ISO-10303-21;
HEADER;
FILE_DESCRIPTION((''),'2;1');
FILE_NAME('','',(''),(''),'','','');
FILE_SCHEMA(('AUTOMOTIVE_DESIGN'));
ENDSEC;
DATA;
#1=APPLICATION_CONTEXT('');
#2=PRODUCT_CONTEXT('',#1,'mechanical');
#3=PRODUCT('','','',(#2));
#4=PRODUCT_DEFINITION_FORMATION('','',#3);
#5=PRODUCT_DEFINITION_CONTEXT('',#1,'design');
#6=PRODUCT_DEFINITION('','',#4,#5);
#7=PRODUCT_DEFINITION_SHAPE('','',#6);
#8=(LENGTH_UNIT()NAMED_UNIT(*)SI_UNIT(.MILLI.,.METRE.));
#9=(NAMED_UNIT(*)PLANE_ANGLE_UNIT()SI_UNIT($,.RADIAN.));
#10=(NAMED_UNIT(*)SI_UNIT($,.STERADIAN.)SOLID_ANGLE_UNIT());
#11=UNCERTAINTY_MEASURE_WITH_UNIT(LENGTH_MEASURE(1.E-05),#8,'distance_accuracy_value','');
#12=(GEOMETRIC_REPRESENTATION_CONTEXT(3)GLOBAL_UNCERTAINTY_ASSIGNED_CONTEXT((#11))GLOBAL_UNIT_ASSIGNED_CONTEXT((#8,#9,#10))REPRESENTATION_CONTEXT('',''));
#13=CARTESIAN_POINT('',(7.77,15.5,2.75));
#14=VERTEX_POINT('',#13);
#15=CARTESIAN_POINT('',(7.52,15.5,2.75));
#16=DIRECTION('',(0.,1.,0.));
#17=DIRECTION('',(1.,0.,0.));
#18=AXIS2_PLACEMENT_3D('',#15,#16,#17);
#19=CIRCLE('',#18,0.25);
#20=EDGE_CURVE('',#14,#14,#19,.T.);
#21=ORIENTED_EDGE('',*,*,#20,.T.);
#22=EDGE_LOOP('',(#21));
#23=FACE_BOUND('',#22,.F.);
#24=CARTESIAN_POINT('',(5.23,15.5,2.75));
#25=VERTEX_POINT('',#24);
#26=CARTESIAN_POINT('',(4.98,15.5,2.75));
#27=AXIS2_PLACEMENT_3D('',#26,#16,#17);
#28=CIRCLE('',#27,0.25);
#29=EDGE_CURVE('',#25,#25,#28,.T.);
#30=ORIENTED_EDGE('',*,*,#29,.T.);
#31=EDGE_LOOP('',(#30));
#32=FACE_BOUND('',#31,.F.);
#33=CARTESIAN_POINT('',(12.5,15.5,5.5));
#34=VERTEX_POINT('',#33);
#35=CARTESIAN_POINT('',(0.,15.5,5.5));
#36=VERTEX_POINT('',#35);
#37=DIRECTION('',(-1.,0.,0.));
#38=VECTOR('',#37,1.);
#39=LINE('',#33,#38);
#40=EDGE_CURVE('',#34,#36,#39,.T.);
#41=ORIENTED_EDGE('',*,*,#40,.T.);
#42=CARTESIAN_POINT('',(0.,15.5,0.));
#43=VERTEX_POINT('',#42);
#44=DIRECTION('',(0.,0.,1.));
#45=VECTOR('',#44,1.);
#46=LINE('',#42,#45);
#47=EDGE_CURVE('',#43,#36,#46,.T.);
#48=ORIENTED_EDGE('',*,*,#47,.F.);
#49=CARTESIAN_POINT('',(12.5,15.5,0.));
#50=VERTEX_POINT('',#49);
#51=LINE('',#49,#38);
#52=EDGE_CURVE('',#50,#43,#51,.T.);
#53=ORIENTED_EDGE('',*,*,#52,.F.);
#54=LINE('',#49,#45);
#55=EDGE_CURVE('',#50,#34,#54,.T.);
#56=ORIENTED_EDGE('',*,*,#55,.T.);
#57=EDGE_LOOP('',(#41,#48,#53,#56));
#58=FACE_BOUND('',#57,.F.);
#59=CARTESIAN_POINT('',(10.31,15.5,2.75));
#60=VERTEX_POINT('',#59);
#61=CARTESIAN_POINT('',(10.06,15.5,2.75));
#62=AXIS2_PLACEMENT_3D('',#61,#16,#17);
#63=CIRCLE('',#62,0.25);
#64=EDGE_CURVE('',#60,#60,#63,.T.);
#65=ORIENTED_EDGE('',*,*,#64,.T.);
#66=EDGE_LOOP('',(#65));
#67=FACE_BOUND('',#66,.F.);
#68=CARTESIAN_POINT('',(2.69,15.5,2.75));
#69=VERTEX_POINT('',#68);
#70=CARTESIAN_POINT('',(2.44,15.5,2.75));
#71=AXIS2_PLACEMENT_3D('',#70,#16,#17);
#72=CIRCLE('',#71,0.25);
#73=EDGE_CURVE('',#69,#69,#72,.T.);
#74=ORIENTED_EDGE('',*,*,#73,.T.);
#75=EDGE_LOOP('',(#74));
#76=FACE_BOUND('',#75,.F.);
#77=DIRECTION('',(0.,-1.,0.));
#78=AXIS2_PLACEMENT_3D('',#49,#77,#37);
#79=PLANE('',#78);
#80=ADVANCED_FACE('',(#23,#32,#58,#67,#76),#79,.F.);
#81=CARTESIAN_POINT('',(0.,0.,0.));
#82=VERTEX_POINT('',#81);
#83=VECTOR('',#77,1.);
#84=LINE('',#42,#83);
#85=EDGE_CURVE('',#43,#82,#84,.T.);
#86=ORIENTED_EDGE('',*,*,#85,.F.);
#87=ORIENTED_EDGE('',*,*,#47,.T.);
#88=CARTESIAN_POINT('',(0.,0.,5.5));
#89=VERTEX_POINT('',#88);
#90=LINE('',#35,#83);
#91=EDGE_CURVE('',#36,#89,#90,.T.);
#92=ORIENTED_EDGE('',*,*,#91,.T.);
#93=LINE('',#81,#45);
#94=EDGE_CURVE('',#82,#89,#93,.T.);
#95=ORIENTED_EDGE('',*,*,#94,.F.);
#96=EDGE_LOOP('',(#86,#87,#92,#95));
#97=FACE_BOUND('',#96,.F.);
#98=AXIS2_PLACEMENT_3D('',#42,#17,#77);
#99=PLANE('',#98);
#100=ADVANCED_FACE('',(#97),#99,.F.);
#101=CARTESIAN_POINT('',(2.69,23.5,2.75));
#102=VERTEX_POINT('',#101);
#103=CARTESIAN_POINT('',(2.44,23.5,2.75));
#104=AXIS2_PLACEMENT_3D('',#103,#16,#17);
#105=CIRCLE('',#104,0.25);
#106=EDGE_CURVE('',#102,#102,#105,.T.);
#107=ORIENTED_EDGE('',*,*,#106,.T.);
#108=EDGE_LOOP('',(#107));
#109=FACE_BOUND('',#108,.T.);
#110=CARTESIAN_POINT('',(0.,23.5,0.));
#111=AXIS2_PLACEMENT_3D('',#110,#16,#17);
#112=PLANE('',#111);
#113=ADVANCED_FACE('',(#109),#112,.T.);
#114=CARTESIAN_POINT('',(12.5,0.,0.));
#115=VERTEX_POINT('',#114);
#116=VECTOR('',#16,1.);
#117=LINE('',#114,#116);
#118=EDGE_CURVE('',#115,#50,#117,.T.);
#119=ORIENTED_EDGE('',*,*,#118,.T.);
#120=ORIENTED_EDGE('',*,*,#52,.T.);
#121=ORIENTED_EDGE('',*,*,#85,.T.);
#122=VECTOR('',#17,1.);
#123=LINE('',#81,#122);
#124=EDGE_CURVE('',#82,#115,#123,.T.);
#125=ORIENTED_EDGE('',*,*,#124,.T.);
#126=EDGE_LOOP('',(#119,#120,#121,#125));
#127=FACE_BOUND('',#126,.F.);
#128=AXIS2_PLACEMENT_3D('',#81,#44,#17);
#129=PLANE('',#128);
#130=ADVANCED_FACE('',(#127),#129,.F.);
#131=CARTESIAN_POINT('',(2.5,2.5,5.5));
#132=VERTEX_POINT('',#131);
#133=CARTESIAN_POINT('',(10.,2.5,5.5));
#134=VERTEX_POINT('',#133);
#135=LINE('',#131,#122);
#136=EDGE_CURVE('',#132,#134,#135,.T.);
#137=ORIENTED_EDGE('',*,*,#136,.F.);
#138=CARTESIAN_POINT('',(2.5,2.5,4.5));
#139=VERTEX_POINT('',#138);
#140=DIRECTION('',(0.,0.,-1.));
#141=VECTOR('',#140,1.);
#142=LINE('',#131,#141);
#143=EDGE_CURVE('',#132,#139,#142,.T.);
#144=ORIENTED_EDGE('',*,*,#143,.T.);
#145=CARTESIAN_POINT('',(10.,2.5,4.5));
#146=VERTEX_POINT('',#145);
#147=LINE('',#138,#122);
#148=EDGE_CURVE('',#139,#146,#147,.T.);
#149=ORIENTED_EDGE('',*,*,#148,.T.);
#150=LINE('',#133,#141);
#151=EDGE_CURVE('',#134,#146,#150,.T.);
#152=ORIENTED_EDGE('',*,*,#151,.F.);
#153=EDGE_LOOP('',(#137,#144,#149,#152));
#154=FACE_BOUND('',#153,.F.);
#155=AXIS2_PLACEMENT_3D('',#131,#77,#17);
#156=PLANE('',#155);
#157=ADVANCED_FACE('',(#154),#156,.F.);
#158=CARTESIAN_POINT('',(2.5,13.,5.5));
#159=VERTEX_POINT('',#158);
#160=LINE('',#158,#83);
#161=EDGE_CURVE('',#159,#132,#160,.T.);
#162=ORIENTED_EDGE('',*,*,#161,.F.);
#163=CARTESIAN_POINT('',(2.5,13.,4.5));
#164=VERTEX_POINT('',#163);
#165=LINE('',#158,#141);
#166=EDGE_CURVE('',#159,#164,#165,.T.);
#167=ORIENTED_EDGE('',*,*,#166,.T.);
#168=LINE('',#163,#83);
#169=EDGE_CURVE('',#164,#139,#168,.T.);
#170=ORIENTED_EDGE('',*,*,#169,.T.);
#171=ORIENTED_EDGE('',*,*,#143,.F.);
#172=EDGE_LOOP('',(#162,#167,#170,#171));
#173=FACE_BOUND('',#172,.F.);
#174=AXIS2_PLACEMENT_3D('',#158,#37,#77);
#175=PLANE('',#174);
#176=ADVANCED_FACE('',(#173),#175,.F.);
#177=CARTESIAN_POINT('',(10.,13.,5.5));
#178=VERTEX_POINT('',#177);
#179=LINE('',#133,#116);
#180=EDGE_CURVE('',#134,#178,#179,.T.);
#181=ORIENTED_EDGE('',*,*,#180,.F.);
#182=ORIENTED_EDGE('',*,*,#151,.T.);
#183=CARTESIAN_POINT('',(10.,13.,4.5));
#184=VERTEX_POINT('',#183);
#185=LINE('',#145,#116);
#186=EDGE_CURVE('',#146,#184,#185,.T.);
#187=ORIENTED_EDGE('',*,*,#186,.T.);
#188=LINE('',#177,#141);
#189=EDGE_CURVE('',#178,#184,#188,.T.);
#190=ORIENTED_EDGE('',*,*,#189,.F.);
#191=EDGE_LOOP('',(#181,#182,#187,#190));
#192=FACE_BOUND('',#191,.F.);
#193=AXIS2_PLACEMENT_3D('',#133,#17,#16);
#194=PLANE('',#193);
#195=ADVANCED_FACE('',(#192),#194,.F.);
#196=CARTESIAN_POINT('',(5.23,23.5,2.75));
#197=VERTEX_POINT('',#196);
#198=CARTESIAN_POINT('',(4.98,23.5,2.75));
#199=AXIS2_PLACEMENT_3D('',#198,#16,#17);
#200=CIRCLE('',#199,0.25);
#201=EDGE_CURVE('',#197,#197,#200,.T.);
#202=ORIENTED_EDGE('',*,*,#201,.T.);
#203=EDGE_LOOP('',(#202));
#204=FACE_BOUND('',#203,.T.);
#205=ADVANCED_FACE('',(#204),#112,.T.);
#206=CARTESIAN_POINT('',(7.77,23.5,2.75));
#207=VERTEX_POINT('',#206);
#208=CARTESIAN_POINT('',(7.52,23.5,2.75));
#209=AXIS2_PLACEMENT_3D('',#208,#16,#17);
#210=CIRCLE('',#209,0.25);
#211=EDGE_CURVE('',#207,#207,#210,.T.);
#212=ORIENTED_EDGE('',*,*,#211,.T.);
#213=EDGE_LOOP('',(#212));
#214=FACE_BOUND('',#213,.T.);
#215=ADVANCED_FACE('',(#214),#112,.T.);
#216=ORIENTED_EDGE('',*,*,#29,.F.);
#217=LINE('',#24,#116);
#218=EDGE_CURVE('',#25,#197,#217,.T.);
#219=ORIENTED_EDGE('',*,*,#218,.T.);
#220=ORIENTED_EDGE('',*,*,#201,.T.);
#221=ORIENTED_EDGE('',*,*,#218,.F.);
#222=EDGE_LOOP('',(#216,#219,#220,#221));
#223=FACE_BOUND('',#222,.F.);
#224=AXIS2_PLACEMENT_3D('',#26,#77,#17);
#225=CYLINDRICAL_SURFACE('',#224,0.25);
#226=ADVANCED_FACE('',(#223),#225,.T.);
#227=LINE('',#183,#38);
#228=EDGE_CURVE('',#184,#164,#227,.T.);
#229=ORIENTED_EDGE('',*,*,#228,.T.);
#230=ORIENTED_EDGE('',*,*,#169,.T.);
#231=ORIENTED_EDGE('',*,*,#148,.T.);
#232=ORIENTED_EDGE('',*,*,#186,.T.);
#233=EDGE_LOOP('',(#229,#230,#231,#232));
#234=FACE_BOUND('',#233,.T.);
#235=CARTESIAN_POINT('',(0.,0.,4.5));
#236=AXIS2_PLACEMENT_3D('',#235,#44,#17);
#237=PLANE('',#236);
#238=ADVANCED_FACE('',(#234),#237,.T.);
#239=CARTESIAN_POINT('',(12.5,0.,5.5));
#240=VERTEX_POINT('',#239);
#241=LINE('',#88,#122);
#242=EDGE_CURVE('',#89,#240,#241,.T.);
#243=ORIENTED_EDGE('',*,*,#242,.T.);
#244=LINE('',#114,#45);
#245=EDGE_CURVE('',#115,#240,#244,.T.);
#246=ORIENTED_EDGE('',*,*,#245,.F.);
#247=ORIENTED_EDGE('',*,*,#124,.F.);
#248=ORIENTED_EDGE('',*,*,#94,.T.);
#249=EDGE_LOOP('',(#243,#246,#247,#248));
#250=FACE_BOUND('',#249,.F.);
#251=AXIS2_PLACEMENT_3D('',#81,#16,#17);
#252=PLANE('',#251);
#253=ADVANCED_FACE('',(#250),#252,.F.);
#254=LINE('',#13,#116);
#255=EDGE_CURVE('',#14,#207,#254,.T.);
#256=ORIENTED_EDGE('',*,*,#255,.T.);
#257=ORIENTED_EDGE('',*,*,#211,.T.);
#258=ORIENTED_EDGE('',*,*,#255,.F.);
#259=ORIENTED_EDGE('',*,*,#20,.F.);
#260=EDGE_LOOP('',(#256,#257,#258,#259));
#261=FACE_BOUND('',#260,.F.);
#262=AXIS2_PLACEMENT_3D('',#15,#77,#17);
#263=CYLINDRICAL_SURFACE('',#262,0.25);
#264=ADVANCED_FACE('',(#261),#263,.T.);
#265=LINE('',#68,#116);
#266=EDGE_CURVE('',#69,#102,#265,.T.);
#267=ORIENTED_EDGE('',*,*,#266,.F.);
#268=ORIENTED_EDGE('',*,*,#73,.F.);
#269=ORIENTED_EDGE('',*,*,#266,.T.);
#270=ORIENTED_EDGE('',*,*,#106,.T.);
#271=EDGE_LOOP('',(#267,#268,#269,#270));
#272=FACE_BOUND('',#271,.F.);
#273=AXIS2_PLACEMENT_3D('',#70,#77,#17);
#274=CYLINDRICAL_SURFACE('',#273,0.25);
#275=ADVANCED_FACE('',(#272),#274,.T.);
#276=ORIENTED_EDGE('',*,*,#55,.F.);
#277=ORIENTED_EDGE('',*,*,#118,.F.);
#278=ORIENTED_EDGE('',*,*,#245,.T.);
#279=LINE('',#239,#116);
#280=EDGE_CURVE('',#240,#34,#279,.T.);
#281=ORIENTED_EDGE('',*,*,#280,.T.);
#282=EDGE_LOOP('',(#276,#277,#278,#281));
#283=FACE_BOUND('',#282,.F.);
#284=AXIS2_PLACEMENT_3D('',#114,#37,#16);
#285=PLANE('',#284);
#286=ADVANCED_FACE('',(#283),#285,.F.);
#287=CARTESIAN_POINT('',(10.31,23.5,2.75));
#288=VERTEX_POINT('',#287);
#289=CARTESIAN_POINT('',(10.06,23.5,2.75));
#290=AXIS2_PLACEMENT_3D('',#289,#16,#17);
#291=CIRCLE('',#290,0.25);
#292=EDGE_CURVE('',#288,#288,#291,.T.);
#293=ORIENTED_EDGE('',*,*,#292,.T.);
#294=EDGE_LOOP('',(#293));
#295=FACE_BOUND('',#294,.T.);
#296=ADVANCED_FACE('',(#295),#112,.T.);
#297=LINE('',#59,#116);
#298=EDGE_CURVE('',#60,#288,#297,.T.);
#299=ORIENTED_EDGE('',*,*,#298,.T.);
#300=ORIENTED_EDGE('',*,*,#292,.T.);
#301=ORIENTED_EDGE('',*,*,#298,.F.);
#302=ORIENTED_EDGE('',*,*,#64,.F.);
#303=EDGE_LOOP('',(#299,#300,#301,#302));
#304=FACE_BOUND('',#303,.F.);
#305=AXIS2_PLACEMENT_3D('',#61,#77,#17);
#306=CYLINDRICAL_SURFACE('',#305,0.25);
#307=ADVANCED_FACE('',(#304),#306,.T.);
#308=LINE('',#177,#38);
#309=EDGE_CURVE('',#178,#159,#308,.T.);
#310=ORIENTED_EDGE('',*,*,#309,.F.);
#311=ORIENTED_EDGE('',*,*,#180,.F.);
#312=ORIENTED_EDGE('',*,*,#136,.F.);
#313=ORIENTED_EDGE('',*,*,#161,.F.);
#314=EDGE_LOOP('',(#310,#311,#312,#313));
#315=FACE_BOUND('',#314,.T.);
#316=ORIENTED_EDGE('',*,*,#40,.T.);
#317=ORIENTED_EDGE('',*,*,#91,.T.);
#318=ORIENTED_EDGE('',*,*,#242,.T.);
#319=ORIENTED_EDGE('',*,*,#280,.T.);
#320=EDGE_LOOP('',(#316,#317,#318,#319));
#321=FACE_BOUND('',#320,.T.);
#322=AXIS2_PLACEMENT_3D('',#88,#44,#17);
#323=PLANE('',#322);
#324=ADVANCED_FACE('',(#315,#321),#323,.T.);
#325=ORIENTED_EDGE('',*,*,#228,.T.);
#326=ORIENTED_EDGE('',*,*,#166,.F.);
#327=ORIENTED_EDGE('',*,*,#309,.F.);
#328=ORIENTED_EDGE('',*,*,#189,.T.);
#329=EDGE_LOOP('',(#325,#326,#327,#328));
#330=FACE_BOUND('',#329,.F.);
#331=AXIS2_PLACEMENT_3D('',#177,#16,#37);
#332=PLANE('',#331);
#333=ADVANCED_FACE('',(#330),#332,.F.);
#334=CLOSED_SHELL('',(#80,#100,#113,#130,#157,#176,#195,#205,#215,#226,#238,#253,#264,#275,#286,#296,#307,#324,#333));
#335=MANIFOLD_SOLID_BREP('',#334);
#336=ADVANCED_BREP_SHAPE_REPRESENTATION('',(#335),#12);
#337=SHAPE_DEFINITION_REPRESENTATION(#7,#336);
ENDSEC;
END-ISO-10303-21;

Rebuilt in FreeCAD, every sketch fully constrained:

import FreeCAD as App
import Part
import Sketcher

V = App.Vector
Q = App.Units.Quantity

doc = App.newDocument("Part")
body = doc.addObject("PartDesign::Body", "Body")

sketch1 = body.newObject("Sketcher::SketchObject", "Sketch")
sketch1.AttachmentSupport = (doc.getObject("XY_Plane"), [""])
sketch1.MapMode = "FlatFace"
sketch1.addGeometry([
    Part.LineSegment(V(0, 16, 0), V(0, 0, 0)),
    Part.LineSegment(V(0, 0, 0), V(12, 0, 0)),
    Part.LineSegment(V(12, 0, 0), V(12, 16, 0)),
    Part.LineSegment(V(12, 16, 0), V(0, 16, 0)),
], False)
sketch1.addConstraint([
    Sketcher.Constraint("Coincident", 0, 2, 1, 1),
    Sketcher.Constraint("Coincident", 1, 2, 2, 1),
    Sketcher.Constraint("Coincident", 2, 2, 3, 1),
    Sketcher.Constraint("Coincident", 3, 2, 0, 1),
    Sketcher.Constraint("Vertical", 0),
    Sketcher.Constraint("Horizontal", 1),
    Sketcher.Constraint("Vertical", 2),
    Sketcher.Constraint("Horizontal", 3),
    Sketcher.Constraint("Coincident", 0, 2, -1, 1),
    Sketcher.Constraint("DistanceX", 1, 1, 1, 2, Q("12.5 mm")),
    Sketcher.Constraint("DistanceY", 0, 2, 0, 1, Q("15.5 mm")),
])
pad1 = body.newObject("PartDesign::Pad", "Pad")
pad1.Profile = sketch1
pad1.Length = 5.5

sketch2 = body.newObject("Sketcher::SketchObject", "Sketch001")
sketch2.AttachmentSupport = (doc.getObject("XY_Plane"), [""])
sketch2.MapMode = "FlatFace"
sketch2.AttachmentOffset = App.Placement(V(0, 0, 5.5), App.Rotation())
sketch2.addGeometry([
    Part.LineSegment(V(2, 13, 0), V(2, 2, 0)),
    Part.LineSegment(V(2, 2, 0), V(10, 2, 0)),
    Part.LineSegment(V(10, 2, 0), V(10, 13, 0)),
    Part.LineSegment(V(10, 13, 0), V(2, 13, 0)),
], False)
sketch2.addConstraint([
    Sketcher.Constraint("Coincident", 0, 2, 1, 1),
    Sketcher.Constraint("Coincident", 1, 2, 2, 1),
    Sketcher.Constraint("Coincident", 2, 2, 3, 1),
    Sketcher.Constraint("Coincident", 3, 2, 0, 1),
    Sketcher.Constraint("Vertical", 0),
    Sketcher.Constraint("Horizontal", 1),
    Sketcher.Constraint("Vertical", 2),
    Sketcher.Constraint("Horizontal", 3),
    Sketcher.Constraint("DistanceX", 1, 1, 1, 2, Q("7.5 mm")),
    Sketcher.Constraint("DistanceY", 0, 2, 0, 1, Q("10.5 mm")),
    Sketcher.Constraint("DistanceX", -1, 1, 1, 2, Q("10 mm")),
    Sketcher.Constraint("DistanceY", -1, 1, 2, 2, Q("13 mm")),
])
pocket1 = body.newObject("PartDesign::Pocket", "Pocket")
pocket1.Profile = sketch2
pocket1.Length = 1

sketch3 = body.newObject("Sketcher::SketchObject", "Sketch002")
sketch3.AttachmentSupport = (doc.getObject("XZ_Plane"), [""])
sketch3.MapMode = "FlatFace"
sketch3.AttachmentOffset = App.Placement(V(0, 0, -15.5), App.Rotation())
sketch3.addGeometry([
    Part.Circle(V(2.44, 2.75, 0), V(0, 0, 1), 0.25),
    Part.Circle(V(4.98, 2.75, 0), V(0, 0, 1), 0.25),
    Part.Circle(V(7.52, 2.75, 0), V(0, 0, 1), 0.25),
    Part.Circle(V(10.06, 2.75, 0), V(0, 0, 1), 0.25),
], False)
sketch3.addConstraint([
    Sketcher.Constraint("Equal", 0, 1),
    Sketcher.Constraint("Equal", 1, 2),
    Sketcher.Constraint("Equal", 2, 3),
    Sketcher.Constraint("Horizontal", 0, 3, 1, 3),
    Sketcher.Constraint("Horizontal", 1, 3, 2, 3),
    Sketcher.Constraint("Horizontal", 2, 3, 3, 3),
    Sketcher.Constraint("Diameter", 0, Q("0.5 mm")),
    Sketcher.Constraint("DistanceX", -1, 1, 0, 3, Q("2.44 mm")),
    Sketcher.Constraint("DistanceY", -1, 1, 0, 3, Q("2.75 mm")),
    Sketcher.Constraint("DistanceX", -1, 1, 1, 3, Q("4.98 mm")),
    Sketcher.Constraint("DistanceX", -1, 1, 2, 3, Q("7.52 mm")),
    Sketcher.Constraint("DistanceX", -1, 1, 3, 3, Q("10.06 mm")),
])
pad2 = body.newObject("PartDesign::Pad", "Pad001")
pad2.Profile = sketch3
pad2.Length = 8
pad2.Reversed = True

doc.recompute()
